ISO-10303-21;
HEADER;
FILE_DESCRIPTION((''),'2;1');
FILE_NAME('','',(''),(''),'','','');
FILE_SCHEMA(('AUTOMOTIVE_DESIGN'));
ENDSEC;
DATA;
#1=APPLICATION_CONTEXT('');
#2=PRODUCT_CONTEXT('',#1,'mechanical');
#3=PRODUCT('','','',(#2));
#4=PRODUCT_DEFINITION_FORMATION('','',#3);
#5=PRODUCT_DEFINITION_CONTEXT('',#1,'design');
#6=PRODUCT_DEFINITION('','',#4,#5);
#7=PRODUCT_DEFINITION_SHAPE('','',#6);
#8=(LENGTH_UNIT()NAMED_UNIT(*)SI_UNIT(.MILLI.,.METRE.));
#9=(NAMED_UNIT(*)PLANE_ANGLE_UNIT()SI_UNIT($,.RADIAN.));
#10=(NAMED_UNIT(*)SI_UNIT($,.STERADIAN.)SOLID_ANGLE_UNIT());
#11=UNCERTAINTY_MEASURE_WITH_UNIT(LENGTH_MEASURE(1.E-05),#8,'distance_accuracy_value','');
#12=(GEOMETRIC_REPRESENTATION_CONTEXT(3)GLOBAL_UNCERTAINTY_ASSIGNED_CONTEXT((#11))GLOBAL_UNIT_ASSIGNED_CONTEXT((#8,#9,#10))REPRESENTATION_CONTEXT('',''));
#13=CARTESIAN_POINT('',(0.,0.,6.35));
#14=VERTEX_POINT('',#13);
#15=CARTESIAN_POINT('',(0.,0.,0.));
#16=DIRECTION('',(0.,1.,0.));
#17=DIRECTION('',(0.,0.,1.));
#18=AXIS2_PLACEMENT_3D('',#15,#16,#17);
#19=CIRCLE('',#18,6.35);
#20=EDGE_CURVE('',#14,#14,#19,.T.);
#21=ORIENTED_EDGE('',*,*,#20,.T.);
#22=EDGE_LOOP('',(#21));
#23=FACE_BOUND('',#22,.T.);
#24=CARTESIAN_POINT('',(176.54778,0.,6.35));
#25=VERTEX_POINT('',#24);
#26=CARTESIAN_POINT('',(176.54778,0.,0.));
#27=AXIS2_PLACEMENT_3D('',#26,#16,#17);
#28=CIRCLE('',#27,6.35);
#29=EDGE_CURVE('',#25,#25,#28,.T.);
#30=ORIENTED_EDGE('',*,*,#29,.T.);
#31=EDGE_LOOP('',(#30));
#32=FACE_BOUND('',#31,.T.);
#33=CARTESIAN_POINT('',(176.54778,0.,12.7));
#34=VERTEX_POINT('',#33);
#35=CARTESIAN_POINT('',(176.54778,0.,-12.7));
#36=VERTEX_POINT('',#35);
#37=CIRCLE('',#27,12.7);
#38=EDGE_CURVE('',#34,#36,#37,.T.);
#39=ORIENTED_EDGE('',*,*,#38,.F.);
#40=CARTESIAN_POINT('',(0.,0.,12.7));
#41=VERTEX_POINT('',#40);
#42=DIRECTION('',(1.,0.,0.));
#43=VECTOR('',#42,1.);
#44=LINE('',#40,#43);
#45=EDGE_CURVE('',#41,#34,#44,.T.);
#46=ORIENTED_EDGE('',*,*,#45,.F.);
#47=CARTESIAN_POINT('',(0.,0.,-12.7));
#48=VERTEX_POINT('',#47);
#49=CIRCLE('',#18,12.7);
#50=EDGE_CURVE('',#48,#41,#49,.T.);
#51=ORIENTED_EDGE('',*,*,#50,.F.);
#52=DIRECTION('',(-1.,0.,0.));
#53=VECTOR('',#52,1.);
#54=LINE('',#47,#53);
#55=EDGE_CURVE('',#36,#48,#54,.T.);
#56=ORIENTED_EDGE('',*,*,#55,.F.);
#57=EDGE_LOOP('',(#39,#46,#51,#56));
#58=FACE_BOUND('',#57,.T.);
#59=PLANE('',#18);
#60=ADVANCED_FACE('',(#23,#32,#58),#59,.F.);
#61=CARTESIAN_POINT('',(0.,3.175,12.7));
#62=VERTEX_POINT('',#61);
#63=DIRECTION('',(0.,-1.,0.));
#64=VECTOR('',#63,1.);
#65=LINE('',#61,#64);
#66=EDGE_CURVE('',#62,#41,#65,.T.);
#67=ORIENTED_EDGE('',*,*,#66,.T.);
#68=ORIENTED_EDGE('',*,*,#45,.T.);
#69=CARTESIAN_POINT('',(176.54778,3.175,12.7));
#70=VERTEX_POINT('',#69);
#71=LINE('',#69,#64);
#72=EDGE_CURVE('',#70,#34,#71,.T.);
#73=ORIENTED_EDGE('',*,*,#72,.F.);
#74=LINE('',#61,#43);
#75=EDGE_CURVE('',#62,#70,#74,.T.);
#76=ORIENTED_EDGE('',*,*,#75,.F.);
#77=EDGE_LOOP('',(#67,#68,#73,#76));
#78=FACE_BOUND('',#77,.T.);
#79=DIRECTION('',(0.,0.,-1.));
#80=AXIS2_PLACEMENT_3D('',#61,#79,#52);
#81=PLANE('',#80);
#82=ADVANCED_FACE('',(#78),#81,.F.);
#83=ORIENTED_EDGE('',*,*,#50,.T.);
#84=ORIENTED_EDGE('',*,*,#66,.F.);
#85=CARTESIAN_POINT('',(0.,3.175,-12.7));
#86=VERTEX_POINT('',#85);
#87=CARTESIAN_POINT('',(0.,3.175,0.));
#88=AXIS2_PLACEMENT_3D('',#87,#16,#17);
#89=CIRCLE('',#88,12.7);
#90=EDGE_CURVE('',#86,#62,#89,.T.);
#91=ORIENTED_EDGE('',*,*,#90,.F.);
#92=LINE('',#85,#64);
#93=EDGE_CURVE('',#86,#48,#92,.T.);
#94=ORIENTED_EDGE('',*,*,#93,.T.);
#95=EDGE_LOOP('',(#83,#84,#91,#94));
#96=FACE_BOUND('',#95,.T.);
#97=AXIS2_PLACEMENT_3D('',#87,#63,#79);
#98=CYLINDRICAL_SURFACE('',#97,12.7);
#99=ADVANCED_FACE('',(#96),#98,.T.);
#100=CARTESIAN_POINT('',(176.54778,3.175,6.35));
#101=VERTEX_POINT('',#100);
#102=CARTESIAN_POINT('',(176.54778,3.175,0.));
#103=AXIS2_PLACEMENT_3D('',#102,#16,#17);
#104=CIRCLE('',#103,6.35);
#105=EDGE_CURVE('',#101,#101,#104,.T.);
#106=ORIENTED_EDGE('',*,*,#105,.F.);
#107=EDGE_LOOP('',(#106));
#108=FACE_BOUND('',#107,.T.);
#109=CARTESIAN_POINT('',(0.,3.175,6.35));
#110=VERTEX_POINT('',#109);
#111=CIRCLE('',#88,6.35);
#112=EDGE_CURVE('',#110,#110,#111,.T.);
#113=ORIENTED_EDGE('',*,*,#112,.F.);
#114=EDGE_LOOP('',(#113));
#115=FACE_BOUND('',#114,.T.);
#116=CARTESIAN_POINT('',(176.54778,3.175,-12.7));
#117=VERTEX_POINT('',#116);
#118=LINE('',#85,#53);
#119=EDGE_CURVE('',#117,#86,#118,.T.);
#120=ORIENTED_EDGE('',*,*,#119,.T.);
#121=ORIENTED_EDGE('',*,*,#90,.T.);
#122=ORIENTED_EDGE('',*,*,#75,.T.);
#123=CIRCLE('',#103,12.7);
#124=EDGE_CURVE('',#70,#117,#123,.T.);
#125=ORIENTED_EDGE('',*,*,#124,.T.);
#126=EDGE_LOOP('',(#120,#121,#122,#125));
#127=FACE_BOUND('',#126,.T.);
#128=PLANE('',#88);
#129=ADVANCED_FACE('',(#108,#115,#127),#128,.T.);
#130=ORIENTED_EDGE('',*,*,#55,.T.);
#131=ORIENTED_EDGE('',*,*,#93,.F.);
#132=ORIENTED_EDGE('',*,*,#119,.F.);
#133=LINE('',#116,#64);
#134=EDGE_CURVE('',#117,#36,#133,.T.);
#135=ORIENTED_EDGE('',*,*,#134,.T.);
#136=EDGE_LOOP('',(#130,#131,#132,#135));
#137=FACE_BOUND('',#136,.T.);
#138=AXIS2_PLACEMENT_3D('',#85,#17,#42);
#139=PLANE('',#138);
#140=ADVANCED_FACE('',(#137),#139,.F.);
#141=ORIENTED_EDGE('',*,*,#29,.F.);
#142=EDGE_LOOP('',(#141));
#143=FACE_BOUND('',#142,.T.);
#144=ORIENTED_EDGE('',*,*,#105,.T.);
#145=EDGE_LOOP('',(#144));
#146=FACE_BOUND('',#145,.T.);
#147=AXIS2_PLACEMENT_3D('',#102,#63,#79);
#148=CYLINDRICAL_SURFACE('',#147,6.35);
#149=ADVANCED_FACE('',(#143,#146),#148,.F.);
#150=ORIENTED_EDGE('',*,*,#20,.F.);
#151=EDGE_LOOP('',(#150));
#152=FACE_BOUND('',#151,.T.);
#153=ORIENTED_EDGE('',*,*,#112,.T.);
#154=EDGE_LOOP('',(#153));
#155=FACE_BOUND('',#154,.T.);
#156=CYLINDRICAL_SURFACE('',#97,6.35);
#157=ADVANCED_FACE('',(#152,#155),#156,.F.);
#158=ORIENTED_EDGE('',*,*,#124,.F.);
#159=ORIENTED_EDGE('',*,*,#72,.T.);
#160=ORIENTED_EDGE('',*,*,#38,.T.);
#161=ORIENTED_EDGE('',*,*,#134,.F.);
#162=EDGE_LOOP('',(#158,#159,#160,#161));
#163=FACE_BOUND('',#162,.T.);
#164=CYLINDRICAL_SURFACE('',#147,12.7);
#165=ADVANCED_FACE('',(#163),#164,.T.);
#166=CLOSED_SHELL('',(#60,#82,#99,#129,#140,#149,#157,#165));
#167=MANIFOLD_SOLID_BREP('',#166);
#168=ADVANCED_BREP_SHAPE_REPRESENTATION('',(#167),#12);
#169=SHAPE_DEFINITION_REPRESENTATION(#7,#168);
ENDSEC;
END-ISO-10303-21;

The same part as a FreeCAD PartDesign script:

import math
import FreeCAD as App
import Part
import Sketcher
Q = App.Units.Quantity

doc = App.newDocument("Part")
body = doc.addObject("PartDesign::Body", "Body")

sketch1 = doc.addObject("Sketcher::SketchObject", "Sketch")
body.addObject(sketch1)
sketch1.AttachmentSupport = (doc.XZ_Plane, [""])
sketch1.MapMode = "FlatFace"
sketch1.addGeometry([
    Part.LineSegment(App.Vector(177, -13, 0), App.Vector(0, -13, 0)),
    Part.ArcOfCircle(Part.Circle(App.Vector(0, 0, 0), App.Vector(0, 0, 1), 13), math.radians(90), math.radians(270)),
    Part.LineSegment(App.Vector(0, 13, 0), App.Vector(177, 13, 0)),
    Part.ArcOfCircle(Part.Circle(App.Vector(177, 0, 0), App.Vector(0, 0, 1), 13), math.radians(-90), math.radians(90)),
    Part.Circle(App.Vector(177, 0, 0), App.Vector(0, 0, 1), 6),
    Part.Circle(App.Vector(0, 0, 0), App.Vector(0, 0, 1), 6),
], False)
sketch1.addConstraint([
    Sketcher.Constraint("Tangent", 0, 2, 1, 2),
    Sketcher.Constraint("Tangent", 1, 1, 2, 1),
    Sketcher.Constraint("Tangent", 2, 2, 3, 2),
    Sketcher.Constraint("Tangent", 3, 1, 0, 1),
    Sketcher.Constraint("Horizontal", 0),
    Sketcher.Constraint("Horizontal", 2),
    Sketcher.Constraint("Coincident", 1, 3, -1, 1),
    Sketcher.Constraint("Coincident", 5, 3, -1, 1),
    Sketcher.Constraint("Coincident", 4, 3, 3, 3),
    Sketcher.Constraint("Equal", 4, 5),
    Sketcher.Constraint("Diameter", 4, Q("0.5 in")),
    Sketcher.Constraint("Radius", 1, Q("0.5 in")),
    Sketcher.Constraint("DistanceX", 0, 2, 0, 1, Q("6.9507 in")),
])
pad1 = doc.addObject("PartDesign::Pad", "Pad")
body.addObject(pad1)
pad1.Profile = sketch1
pad1.Length = Q("0.125 in")
pad1.Reversed = True

doc.recompute()
